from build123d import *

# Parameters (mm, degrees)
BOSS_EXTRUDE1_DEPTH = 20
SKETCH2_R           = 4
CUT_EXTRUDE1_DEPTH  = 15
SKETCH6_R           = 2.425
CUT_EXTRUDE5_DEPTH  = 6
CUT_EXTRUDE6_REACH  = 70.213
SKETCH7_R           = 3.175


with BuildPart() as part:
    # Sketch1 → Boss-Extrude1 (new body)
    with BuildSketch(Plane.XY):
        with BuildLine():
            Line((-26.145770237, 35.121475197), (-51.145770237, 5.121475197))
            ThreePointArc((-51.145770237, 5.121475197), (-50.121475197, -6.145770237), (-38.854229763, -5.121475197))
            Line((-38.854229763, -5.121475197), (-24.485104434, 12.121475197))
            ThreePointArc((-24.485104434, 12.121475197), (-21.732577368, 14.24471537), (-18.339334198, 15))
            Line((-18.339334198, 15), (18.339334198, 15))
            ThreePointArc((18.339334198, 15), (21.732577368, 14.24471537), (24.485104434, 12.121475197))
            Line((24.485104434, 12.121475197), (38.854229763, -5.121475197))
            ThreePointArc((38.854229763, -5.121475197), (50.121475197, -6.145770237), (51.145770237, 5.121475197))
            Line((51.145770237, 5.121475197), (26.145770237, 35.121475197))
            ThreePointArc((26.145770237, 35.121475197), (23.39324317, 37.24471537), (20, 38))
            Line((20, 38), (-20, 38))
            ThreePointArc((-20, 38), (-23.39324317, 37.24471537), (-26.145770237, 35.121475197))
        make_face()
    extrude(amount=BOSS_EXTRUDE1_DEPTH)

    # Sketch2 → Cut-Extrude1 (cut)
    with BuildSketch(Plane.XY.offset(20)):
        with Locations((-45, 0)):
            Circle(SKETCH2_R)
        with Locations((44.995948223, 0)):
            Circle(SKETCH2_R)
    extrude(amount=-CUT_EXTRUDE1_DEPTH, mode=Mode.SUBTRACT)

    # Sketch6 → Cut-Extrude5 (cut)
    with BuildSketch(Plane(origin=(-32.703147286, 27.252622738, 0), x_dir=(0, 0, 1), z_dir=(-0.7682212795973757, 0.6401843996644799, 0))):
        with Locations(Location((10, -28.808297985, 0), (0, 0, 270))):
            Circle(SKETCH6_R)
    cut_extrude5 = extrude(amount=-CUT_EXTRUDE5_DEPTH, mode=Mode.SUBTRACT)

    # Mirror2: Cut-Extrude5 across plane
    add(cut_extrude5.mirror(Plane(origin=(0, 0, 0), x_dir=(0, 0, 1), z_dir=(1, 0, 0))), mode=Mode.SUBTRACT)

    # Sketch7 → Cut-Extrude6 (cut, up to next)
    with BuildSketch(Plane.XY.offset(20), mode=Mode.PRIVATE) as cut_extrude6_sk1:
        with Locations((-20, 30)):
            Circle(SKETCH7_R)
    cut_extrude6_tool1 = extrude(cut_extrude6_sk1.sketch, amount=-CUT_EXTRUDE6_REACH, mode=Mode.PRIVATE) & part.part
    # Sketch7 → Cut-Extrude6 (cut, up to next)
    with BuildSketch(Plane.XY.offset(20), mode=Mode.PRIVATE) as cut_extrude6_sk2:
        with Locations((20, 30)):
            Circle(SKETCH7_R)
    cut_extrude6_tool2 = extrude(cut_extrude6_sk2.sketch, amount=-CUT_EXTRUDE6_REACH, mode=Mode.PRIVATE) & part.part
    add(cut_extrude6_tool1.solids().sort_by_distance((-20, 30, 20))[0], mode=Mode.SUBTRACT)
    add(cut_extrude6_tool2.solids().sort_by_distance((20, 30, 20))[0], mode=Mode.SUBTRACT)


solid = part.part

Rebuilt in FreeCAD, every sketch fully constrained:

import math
import FreeCAD as App
import Part
import Sketcher

V = App.Vector

doc = App.newDocument("Part")
body = doc.addObject("PartDesign::Body", "Body")

sketch1 = doc.addObject("Sketcher::SketchObject", "Sketch")
body.addObject(sketch1)
sketch1.AttachmentSupport = (doc.XY_Plane, [""])
sketch1.MapMode = "FlatFace"
sketch1.addGeometry([
    Part.LineSegment(V(-26.14577, 35.121475, 0), V(-51.14577, 5.121475, 0)),
    Part.ArcOfCircle(Part.Circle(V(-45, 0, 0), V(0, 0, 1), 8), math.radians(140.194429), math.radians(320.194429)),
    Part.LineSegment(V(-38.85423, -5.121475, 0), V(-24.485104, 12.121475, 0)),
    Part.ArcOfCircle(Part.Circle(V(-18.339334, 7, 0), V(0, 0, 1), 8), math.radians(90), math.radians(140.194429)),
    Part.LineSegment(V(-18.339334, 15, 0), V(18.339334, 15, 0)),
    Part.ArcOfCircle(Part.Circle(V(18.339334, 7, 0), V(0, 0, 1), 8), math.radians(39.805571), math.radians(90)),
    Part.LineSegment(V(24.485104, 12.121475, 0), V(38.85423, -5.121475, 0)),
    Part.ArcOfCircle(Part.Circle(V(45, 0, 0), V(0, 0, 1), 8), math.radians(-140.194429), math.radians(39.805571)),
    Part.LineSegment(V(51.14577, 5.121475, 0), V(26.14577, 35.121475, 0)),
    Part.ArcOfCircle(Part.Circle(V(20, 30, 0), V(0, 0, 1), 8), math.radians(39.805571), math.radians(90)),
    Part.LineSegment(V(20, 38, 0), V(-20, 38, 0)),
    Part.ArcOfCircle(Part.Circle(V(-20, 30, 0), V(0, 0, 1), 8), math.radians(90), math.radians(140.194429)),
], False)
sketch1.addConstraint([
    Sketcher.Constraint("Tangent", 0, 2, 1, 1),
    Sketcher.Constraint("Tangent", 1, 2, 2, 1),
    Sketcher.Constraint("Tangent", 2, 2, 3, 2),
    Sketcher.Constraint("Tangent", 3, 1, 4, 1),
    Sketcher.Constraint("Tangent", 4, 2, 5, 2),
    Sketcher.Constraint("Tangent", 5, 1, 6, 1),
    Sketcher.Constraint("Tangent", 6, 2, 7, 1),
    Sketcher.Constraint("Tangent", 7, 2, 8, 1),
    Sketcher.Constraint("Tangent", 8, 2, 9, 1),
    Sketcher.Constraint("Tangent", 9, 2, 10, 1),
    Sketcher.Constraint("Tangent", 10, 2, 11, 1),
    Sketcher.Constraint("Tangent", 11, 2, 0, 1),
    Sketcher.Constraint("Horizontal", 4),
    Sketcher.Constraint("Horizontal", 10),
    Sketcher.Constraint("Equal", 1, 3),
    Sketcher.Constraint("Equal", 3, 5),
    Sketcher.Constraint("Equal", 5, 7),
    Sketcher.Constraint("Equal", 7, 9),
    Sketcher.Constraint("Equal", 9, 11),
    Sketcher.Constraint("Symmetric", 1, 3, 7, 3, -1, 1),
    Sketcher.Constraint("Symmetric", 2, 2, 5, 1, -2),
    Sketcher.Constraint("Parallel", 0, 2),
    Sketcher.Constraint("Parallel", 6, 8),
    Sketcher.Constraint("Radius", 1, 8.0),
    Sketcher.Constraint("DistanceX", 10, 2, 10, 1, 40.0),
    Sketcher.Constraint("DistanceX", 1, 3, -1, 1, 45.0),
    Sketcher.Constraint("DistanceY", -1, 1, 3, 3, 7.0),
    Sketcher.Constraint("DistanceY", -1, 1, 9, 3, 30.0),
])
pad1 = doc.addObject("PartDesign::Pad", "Pad")
body.addObject(pad1)
pad1.Profile = sketch1
pad1.Length = 20

sketch2 = doc.addObject("Sketcher::SketchObject", "Sketch001")
body.addObject(sketch2)
sketch2.AttachmentSupport = (doc.XY_Plane, [""])
sketch2.MapMode = "FlatFace"
sketch2.AttachmentOffset = App.Placement(V(0, 0, 20), App.Rotation())
sketch2.addGeometry([
    Part.Circle(V(-45, 0, 0), V(0, 0, 1), 4),
    Part.Circle(V(44.995948, 0, 0), V(0, 0, 1), 4),
], False)
sketch2.addConstraint([
    Sketcher.Constraint("Equal", 0, 1),
    Sketcher.Constraint("PointOnObject", 0, 3, -1),
    Sketcher.Constraint("PointOnObject", 1, 3, -1),
    Sketcher.Constraint("Diameter", 0, 8.0),
    Sketcher.Constraint("DistanceX", 0, 3, -1, 1, 45.0),
    Sketcher.Constraint("DistanceX", -1, 1, 1, 3, 44.995948),
])
pocket1 = doc.addObject("PartDesign::Pocket", "Pocket")
body.addObject(pocket1)
pocket1.Profile = sketch2
pocket1.Length = 15

sketch3 = doc.addObject("Sketcher::SketchObject", "Sketch002")
body.addObject(sketch3)
sketch3.Placement = App.Placement(V(-32.703147, 27.252623, 0), App.Rotation(V(0, 0, 1), V(0.6401844, 0.76822128, 0), V(-0.76822128, 0.6401844, 0), "ZXY"))
sketch3.addGeometry(Part.Circle(V(10, -28.808298, 0), V(0, 0, 1), 2.425), False)
sketch3.addConstraint([
    Sketcher.Constraint("Diameter", 0, 4.85),
    Sketcher.Constraint("DistanceX", -1, 1, 0, 3, 10.0),
    Sketcher.Constraint("DistanceY", 0, 3, -1, 1, 28.808298),
])
pocket2 = doc.addObject("PartDesign::Pocket", "Pocket001")
body.addObject(pocket2)
pocket2.Profile = sketch3
pocket2.Length = 6
doc.recompute()

mirrored = doc.addObject("PartDesign::Mirrored", "Mirrored")
body.addObject(mirrored)
mirrored.Originals = [pocket2]
mirrored.MirrorPlane = (doc.YZ_Plane, [""])
body.Tip = mirrored

sketch4 = doc.addObject("Sketcher::SketchObject", "Sketch003")
body.addObject(sketch4)
sketch4.AttachmentSupport = (doc.XY_Plane, [""])
sketch4.MapMode = "FlatFace"
sketch4.AttachmentOffset = App.Placement(V(0, 0, 20), App.Rotation())
sketch4.addGeometry(Part.Circle(V(-20, 30, 0), V(0, 0, 1), 3.175), False)
sketch4.addConstraint([
    Sketcher.Constraint("Diameter", 0, 6.35),
    Sketcher.Constraint("DistanceX", 0, 3, -1, 1, 20.0),
    Sketcher.Constraint("DistanceY", -1, 1, 0, 3, 30.0),
])
pocket3 = doc.addObject("PartDesign::Pocket", "Pocket002")
body.addObject(pocket3)
pocket3.Profile = sketch4
pocket3.Type = "UpToFirst"

sketch5 = doc.addObject("Sketcher::SketchObject", "Sketch004")
body.addObject(sketch5)
sketch5.AttachmentSupport = (doc.XY_Plane, [""])
sketch5.MapMode = "FlatFace"
sketch5.AttachmentOffset = App.Placement(V(0, 0, 20), App.Rotation())
sketch5.addGeometry(Part.Circle(V(20, 30, 0), V(0, 0, 1), 3.175), False)
sketch5.addConstraint([
    Sketcher.Constraint("Diameter", 0, 6.35),
    Sketcher.Constraint("DistanceX", -1, 1, 0, 3, 20.0),
    Sketcher.Constraint("DistanceY", -1, 1, 0, 3, 30.0),
])
pocket4 = doc.addObject("PartDesign::Pocket", "Pocket003")
body.addObject(pocket4)
pocket4.Profile = sketch5
pocket4.Type = "UpToFirst"

doc.recompute()
